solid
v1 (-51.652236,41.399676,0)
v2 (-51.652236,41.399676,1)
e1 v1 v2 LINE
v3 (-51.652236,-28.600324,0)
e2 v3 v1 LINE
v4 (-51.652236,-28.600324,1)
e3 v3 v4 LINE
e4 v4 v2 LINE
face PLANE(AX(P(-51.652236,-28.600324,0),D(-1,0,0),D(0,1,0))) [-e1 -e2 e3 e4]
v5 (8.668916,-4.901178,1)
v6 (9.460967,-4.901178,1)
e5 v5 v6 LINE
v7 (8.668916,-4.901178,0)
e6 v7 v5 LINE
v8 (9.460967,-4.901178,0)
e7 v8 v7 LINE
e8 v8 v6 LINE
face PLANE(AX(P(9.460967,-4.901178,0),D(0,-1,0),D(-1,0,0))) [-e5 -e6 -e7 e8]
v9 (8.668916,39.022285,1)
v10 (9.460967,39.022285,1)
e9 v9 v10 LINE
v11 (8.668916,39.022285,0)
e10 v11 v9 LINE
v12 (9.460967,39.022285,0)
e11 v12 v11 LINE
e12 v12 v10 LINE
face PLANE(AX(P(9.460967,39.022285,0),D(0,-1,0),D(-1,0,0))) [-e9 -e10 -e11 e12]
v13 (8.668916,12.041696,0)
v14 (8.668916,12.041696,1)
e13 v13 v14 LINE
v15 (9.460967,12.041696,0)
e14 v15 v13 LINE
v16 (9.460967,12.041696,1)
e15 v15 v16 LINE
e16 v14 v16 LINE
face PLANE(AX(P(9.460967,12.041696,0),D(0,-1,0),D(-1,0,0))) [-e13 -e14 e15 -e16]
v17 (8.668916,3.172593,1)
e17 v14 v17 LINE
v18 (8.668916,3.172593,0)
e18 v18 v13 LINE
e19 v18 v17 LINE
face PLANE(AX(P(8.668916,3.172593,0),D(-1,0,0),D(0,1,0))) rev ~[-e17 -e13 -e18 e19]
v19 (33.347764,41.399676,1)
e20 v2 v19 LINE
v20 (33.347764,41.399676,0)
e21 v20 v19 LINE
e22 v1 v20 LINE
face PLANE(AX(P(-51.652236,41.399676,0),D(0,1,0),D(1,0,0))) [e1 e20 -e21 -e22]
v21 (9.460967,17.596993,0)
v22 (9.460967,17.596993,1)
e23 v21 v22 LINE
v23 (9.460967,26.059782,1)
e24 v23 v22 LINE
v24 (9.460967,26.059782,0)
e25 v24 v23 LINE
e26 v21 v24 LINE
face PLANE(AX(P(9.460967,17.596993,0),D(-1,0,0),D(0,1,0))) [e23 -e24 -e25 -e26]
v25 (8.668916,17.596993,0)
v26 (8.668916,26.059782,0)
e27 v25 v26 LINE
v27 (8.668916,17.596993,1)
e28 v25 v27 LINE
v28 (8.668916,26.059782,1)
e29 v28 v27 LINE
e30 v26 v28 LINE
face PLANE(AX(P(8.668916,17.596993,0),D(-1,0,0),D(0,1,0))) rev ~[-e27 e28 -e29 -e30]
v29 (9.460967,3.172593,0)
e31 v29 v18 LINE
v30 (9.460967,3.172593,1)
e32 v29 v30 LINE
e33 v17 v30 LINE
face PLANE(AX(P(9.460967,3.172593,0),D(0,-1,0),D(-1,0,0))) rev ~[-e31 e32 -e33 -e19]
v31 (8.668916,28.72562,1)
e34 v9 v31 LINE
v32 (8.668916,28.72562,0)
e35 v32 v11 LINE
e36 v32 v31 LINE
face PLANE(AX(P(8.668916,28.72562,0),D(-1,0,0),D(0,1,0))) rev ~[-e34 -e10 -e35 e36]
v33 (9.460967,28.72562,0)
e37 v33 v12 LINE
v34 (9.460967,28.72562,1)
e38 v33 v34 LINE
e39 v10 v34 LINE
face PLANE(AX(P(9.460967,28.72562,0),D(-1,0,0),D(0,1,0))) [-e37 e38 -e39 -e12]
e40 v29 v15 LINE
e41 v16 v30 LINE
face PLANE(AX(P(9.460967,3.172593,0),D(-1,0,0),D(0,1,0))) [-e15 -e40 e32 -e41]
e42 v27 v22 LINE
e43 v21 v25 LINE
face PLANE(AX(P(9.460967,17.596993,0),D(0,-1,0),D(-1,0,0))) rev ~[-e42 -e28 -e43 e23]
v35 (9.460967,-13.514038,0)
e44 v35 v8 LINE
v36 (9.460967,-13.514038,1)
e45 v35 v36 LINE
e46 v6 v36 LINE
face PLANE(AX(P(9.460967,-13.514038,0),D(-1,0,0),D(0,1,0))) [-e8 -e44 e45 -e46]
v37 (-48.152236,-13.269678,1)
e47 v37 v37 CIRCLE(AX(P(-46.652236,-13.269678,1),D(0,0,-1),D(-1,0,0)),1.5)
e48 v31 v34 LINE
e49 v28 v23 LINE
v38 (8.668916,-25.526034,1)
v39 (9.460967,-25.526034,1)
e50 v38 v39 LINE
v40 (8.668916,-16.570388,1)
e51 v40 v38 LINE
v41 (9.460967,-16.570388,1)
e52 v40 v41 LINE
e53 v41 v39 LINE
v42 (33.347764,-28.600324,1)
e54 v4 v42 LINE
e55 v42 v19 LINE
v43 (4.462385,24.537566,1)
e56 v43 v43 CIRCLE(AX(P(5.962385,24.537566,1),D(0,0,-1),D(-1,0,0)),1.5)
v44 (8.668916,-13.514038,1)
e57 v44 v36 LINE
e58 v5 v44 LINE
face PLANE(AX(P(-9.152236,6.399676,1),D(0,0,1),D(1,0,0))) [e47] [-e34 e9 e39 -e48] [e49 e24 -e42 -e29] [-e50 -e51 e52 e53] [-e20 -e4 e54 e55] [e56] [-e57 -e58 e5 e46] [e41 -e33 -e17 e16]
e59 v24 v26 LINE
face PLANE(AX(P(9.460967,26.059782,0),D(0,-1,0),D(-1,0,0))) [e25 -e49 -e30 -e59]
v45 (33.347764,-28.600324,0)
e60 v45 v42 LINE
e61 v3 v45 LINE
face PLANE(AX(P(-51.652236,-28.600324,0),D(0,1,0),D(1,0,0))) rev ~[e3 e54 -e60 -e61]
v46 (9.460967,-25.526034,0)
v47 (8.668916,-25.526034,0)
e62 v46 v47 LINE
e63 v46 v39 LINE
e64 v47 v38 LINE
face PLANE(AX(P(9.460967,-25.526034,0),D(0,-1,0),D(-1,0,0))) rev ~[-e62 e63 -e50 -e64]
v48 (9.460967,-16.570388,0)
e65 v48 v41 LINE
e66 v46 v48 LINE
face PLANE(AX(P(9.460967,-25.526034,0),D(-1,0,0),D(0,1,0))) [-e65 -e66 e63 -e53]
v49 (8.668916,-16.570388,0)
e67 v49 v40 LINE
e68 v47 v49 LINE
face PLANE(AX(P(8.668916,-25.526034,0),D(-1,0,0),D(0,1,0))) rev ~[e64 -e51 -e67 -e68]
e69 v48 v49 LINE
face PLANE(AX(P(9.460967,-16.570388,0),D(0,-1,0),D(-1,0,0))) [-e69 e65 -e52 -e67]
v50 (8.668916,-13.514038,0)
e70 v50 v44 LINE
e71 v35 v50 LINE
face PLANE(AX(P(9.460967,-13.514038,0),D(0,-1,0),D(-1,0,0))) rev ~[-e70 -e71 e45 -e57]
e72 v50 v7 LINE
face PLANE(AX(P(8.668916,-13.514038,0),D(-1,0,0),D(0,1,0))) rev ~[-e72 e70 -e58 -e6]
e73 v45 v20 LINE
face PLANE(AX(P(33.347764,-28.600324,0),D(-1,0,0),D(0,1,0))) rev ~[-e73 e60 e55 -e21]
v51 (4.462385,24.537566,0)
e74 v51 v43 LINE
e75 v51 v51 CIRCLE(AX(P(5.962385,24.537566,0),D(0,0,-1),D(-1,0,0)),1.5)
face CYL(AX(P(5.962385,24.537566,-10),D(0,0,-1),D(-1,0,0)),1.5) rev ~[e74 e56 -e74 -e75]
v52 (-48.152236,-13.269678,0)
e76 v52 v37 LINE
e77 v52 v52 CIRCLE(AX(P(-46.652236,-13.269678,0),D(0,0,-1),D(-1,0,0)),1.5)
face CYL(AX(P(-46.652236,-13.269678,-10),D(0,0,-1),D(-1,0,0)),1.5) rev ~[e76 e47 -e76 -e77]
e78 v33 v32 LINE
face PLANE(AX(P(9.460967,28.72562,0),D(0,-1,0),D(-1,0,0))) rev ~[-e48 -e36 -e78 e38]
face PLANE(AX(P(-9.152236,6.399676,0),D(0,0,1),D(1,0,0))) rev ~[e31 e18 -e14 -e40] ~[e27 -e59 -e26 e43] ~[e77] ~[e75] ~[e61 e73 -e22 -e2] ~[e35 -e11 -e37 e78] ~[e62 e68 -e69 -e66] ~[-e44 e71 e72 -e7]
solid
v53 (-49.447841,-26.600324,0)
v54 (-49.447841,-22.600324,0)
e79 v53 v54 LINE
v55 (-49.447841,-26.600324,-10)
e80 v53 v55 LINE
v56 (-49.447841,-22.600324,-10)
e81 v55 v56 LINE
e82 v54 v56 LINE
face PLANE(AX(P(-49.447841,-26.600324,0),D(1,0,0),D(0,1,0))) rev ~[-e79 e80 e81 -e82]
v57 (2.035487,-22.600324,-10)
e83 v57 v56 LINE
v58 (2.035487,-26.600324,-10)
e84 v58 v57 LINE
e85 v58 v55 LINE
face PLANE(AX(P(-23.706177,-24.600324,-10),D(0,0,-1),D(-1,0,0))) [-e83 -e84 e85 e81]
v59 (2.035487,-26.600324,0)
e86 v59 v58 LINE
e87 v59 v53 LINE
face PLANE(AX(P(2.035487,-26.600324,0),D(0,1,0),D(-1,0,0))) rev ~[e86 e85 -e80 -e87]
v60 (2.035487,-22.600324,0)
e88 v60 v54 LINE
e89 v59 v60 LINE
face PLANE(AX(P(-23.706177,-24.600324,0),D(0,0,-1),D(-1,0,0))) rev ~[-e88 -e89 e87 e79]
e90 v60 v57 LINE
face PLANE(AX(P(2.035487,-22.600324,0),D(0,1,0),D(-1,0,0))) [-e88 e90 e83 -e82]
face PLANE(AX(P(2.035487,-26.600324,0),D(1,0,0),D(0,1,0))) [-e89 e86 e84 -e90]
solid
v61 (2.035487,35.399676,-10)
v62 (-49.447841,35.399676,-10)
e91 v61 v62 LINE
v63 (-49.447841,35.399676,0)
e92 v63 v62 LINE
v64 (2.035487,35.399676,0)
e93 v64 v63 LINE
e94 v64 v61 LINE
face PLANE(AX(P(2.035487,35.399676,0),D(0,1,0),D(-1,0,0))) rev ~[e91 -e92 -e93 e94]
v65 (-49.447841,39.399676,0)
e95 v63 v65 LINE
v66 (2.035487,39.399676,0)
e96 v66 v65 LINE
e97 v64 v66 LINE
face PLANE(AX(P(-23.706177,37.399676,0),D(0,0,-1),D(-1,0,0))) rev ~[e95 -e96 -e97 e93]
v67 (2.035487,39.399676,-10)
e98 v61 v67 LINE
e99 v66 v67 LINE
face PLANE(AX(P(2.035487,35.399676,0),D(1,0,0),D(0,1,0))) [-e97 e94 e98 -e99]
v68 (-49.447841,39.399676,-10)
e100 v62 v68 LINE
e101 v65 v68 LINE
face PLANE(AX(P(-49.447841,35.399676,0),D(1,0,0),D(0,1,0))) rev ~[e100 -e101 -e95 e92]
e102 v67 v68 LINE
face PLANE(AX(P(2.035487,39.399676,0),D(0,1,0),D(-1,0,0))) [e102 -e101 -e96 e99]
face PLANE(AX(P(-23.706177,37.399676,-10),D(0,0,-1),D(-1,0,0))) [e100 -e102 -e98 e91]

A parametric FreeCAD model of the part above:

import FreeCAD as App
import Part
import Sketcher
from FreeCAD import Vector
Q = App.Units.Quantity


def add_polygon(sketch, points):
    """Adds a closed chain of lines whose ends are joined by coincident constraints."""
    first, n = sketch.GeometryCount, len(points)
    for a, b in zip(points, points[1:] + points[:1]):
        sketch.addGeometry(Part.LineSegment(App.Vector(*a, 0), App.Vector(*b, 0)), False)
    for i in range(n):
        sketch.addConstraint(Sketcher.Constraint("Coincident", first + i, 2, first + (i + 1) % n, 1))

doc = App.newDocument("Part")
body = doc.addObject("PartDesign::Body", "Body")

# Sketch on XY plane
sketch1 = body.newObject("Sketcher::SketchObject", "Sketch")
sketch1.AttachmentSupport = (doc.getObject("XY_Plane"), [""])
sketch1.MapMode = "FlatFace"
add_polygon(sketch1, [(-52, 41), (-52, -29), (33, -29), (33, 41)])  # lines 0-3
sketch1.addConstraint(Sketcher.Constraint("Vertical", 0))
sketch1.addConstraint(Sketcher.Constraint("Horizontal", 1))
sketch1.addConstraint(Sketcher.Constraint("Vertical", 2))
sketch1.addConstraint(Sketcher.Constraint("Horizontal", 3))
sketch1.addConstraint(Sketcher.Constraint("DistanceX", 1, 1, 1, 2, Q("85 mm")))
sketch1.addConstraint(Sketcher.Constraint("DistanceY", 0, 2, 0, 1, Q("70 mm")))
sketch1.addConstraint(Sketcher.Constraint("DistanceX", 0, 2, -1, 1, Q("51.652236 mm")))
sketch1.addConstraint(Sketcher.Constraint("DistanceY", 0, 2, -1, 1, Q("28.600324 mm")))
pad1 = body.newObject("PartDesign::Pad", "Pad")
pad1.Profile = sketch1
pad1.Length = 1

# Sketch on XY plane
sketch2 = body.newObject("Sketcher::SketchObject", "Sketch001")
sketch2.AttachmentSupport = (doc.getObject("XY_Plane"), [""])
sketch2.MapMode = "FlatFace"
add_polygon(sketch2, [(9.5, 39), (9.5, 28.7), (8.7, 28.7), (8.7, 39)])  # lines 0-3
add_polygon(sketch2, [(9.5, 26.1), (9.5, 17.6), (8.7, 17.6), (8.7, 26.1)])  # lines 4-7
add_polygon(sketch2, [(9.5, 12), (9.5, 3.2), (8.7, 3.2), (8.7, 12)])  # lines 8-11
add_polygon(sketch2, [(9.5, -4.9), (9.5, -13.5), (8.7, -13.5), (8.7, -4.9)])  # lines 12-15
add_polygon(sketch2, [(9.5, -16.6), (9.5, -25.5), (8.7, -25.5), (8.7, -16.6)])  # lines 16-19
sketch2.addConstraint(Sketcher.Constraint("Vertical", 0))
sketch2.addConstraint(Sketcher.Constraint("Horizontal", 1))
sketch2.addConstraint(Sketcher.Constraint("Vertical", 2))
sketch2.addConstraint(Sketcher.Constraint("Horizontal", 3))
sketch2.addConstraint(Sketcher.Constraint("Vertical", 4))
sketch2.addConstraint(Sketcher.Constraint("Horizontal", 5))
sketch2.addConstraint(Sketcher.Constraint("Vertical", 6))
sketch2.addConstraint(Sketcher.Constraint("Horizontal", 7))
sketch2.addConstraint(Sketcher.Constraint("Vertical", 8))
sketch2.addConstraint(Sketcher.Constraint("Horizontal", 9))
sketch2.addConstraint(Sketcher.Constraint("Vertical", 10))
sketch2.addConstraint(Sketcher.Constraint("Horizontal", 11))
sketch2.addConstraint(Sketcher.Constraint("Vertical", 12))
sketch2.addConstraint(Sketcher.Constraint("Horizontal", 13))
sketch2.addConstraint(Sketcher.Constraint("Vertical", 14))
sketch2.addConstraint(Sketcher.Constraint("Horizontal", 15))
sketch2.addConstraint(Sketcher.Constraint("Vertical", 16))
sketch2.addConstraint(Sketcher.Constraint("Horizontal", 17))
sketch2.addConstraint(Sketcher.Constraint("Vertical", 18))
sketch2.addConstraint(Sketcher.Constraint("Horizontal", 19))
sketch2.addConstraint(Sketcher.Constraint("Vertical", 3, 2, 4, 2))
sketch2.addConstraint(Sketcher.Constraint("Vertical", 2, 2, 5, 2))
sketch2.addConstraint(Sketcher.Constraint("Vertical", 7, 2, 8, 2))
sketch2.addConstraint(Sketcher.Constraint("Vertical", 6, 2, 9, 2))
sketch2.addConstraint(Sketcher.Constraint("Vertical", 11, 2, 12, 2))
sketch2.addConstraint(Sketcher.Constraint("Vertical", 10, 2, 13, 2))
sketch2.addConstraint(Sketcher.Constraint("Vertical", 15, 2, 16, 2))
sketch2.addConstraint(Sketcher.Constraint("Vertical", 14, 2, 17, 2))
sketch2.addConstraint(Sketcher.Constraint("DistanceX", 1, 2, 1, 1, Q("0.792051 mm")))
sketch2.addConstraint(Sketcher.Constraint("DistanceY", 4, 2, 4, 1, Q("8.462788 mm")))
sketch2.addConstraint(Sketcher.Constraint("DistanceY", 12, 2, 12, 1, Q("8.61286 mm")))
sketch2.addConstraint(Sketcher.Constraint("DistanceY", 8, 2, 4, 2, Q("14.4244 mm")))
sketch2.addConstraint(Sketcher.Constraint("DistanceY", 0, 2, 0, 1, Q("10.296666 mm")))
sketch2.addConstraint(Sketcher.Constraint("DistanceY", 8, 2, 8, 1, Q("8.869103 mm")))
sketch2.addConstraint(Sketcher.Constraint("DistanceY", 16, 2, 16, 1, Q("8.955646 mm")))
sketch2.addConstraint(Sketcher.Constraint("DistanceY", -1, 1, 0, 2, Q("28.72562 mm")))
sketch2.addConstraint(Sketcher.Constraint("DistanceY", -1, 1, 6, 2, Q("26.059782 mm")))
sketch2.addConstraint(Sketcher.Constraint("DistanceY", 18, 2, -1, 1, Q("16.570388 mm")))
sketch2.addConstraint(Sketcher.Constraint("DistanceY", 12, 2, 8, 2, Q("16.686631 mm")))
sketch2.addConstraint(Sketcher.Constraint("DistanceX", -1, 1, 0, 2, Q("9.460967 mm")))
pocket1 = body.newObject("PartDesign::Pocket", "Pocket")
pocket1.Profile = sketch2
pocket1.Length = 10
pocket1.Reversed = True

# Sketch on XY plane
sketch3 = body.newObject("Sketcher::SketchObject", "Sketch002")
sketch3.AttachmentSupport = (doc.getObject("XY_Plane"), [""])
sketch3.MapMode = "FlatFace"
sketch3.AttachmentOffset = App.Placement(Vector(0, 0, -10), App.Rotation())
sketch3.addGeometry(Part.Circle(Vector(-46.7, -13.3, 0), Vector(0, 0, 1), 1.5), False)
sketch3.addGeometry(Part.Circle(Vector(6, 24.5, 0), Vector(0, 0, 1), 1.5), False)
sketch3.addConstraint(Sketcher.Constraint("Equal", 0, 1))
sketch3.addConstraint(Sketcher.Constraint("Diameter", 0, Q("3 mm")))
sketch3.addConstraint(Sketcher.Constraint("DistanceX", 0, 3, 1, 3, Q("52.614621 mm")))
sketch3.addConstraint(Sketcher.Constraint("DistanceX", 0, 3, -1, 1, Q("46.652236 mm")))
sketch3.addConstraint(Sketcher.Constraint("DistanceY", 0, 3, -1, 1, Q("13.269678 mm")))
sketch3.addConstraint(Sketcher.Constraint("DistanceY", -1, 1, 1, 3, Q("24.537566 mm")))
pocket2 = body.newObject("PartDesign::Pocket", "Pocket001")
pocket2.Profile = sketch3
pocket2.Length = 33
pocket2.Reversed = True
body2 = doc.addObject("PartDesign::Body", "Body001")

# Sketch on XY plane
sketch4 = body2.newObject("Sketcher::SketchObject", "Sketch003")
sketch4.AttachmentSupport = (doc.getObject("XY_Plane001"), [""])
sketch4.MapMode = "FlatFace"
add_polygon(sketch4, [(2, 39.4), (2, 35.4), (-49.4, 35.4), (-49.4, 39.4)])  # lines 0-3
sketch4.addConstraint(Sketcher.Constraint("Vertical", 0))
sketch4.addConstraint(Sketcher.Constraint("Horizontal", 1))
sketch4.addConstraint(Sketcher.Constraint("Vertical", 2))
sketch4.addConstraint(Sketcher.Constraint("Horizontal", 3))
sketch4.addConstraint(Sketcher.Constraint("DistanceY", 0, 2, 0, 1, Q("4 mm")))
sketch4.addConstraint(Sketcher.Constraint("DistanceX", 1, 2, 1, 1, Q("51.483328 mm")))
sketch4.addConstraint(Sketcher.Constraint("DistanceX", 1, 2, -1, 1, Q("49.447841 mm")))
sketch4.addConstraint(Sketcher.Constraint("DistanceY", -1, 1, 0, 2, Q("35.399676 mm")))
pad2 = body2.newObject("PartDesign::Pad", "Pad001")
pad2.Profile = sketch4
pad2.Length = 10
pad2.Reversed = True
body3 = doc.addObject("PartDesign::Body", "Body002")

# Sketch on XY plane
sketch5 = body3.newObject("Sketcher::SketchObject", "Sketch004")
sketch5.AttachmentSupport = (doc.getObject("XY_Plane002"), [""])
sketch5.MapMode = "FlatFace"
add_polygon(sketch5, [(2, -22.6), (2, -26.6), (-49.4, -26.6), (-49.4, -22.6)])  # lines 0-3
sketch5.addConstraint(Sketcher.Constraint("Vertical", 0))
sketch5.addConstraint(Sketcher.Constraint("Horizontal", 1))
sketch5.addConstraint(Sketcher.Constraint("Vertical", 2))
sketch5.addConstraint(Sketcher.Constraint("Horizontal", 3))
sketch5.addConstraint(Sketcher.Constraint("DistanceY", 0, 2, 0, 1, Q("4 mm")))
sketch5.addConstraint(Sketcher.Constraint("DistanceX", 1, 2, 1, 1, Q("51.483328 mm")))
sketch5.addConstraint(Sketcher.Constraint("DistanceX", 1, 2, -1, 1, Q("49.447841 mm")))
sketch5.addConstraint(Sketcher.Constraint("DistanceY", 0, 2, -1, 1, Q("26.600324 mm")))
pad3 = body3.newObject("PartDesign::Pad", "Pad002")
pad3.Profile = sketch5
pad3.Length = 10
pad3.Reversed = True

doc.recompute()
